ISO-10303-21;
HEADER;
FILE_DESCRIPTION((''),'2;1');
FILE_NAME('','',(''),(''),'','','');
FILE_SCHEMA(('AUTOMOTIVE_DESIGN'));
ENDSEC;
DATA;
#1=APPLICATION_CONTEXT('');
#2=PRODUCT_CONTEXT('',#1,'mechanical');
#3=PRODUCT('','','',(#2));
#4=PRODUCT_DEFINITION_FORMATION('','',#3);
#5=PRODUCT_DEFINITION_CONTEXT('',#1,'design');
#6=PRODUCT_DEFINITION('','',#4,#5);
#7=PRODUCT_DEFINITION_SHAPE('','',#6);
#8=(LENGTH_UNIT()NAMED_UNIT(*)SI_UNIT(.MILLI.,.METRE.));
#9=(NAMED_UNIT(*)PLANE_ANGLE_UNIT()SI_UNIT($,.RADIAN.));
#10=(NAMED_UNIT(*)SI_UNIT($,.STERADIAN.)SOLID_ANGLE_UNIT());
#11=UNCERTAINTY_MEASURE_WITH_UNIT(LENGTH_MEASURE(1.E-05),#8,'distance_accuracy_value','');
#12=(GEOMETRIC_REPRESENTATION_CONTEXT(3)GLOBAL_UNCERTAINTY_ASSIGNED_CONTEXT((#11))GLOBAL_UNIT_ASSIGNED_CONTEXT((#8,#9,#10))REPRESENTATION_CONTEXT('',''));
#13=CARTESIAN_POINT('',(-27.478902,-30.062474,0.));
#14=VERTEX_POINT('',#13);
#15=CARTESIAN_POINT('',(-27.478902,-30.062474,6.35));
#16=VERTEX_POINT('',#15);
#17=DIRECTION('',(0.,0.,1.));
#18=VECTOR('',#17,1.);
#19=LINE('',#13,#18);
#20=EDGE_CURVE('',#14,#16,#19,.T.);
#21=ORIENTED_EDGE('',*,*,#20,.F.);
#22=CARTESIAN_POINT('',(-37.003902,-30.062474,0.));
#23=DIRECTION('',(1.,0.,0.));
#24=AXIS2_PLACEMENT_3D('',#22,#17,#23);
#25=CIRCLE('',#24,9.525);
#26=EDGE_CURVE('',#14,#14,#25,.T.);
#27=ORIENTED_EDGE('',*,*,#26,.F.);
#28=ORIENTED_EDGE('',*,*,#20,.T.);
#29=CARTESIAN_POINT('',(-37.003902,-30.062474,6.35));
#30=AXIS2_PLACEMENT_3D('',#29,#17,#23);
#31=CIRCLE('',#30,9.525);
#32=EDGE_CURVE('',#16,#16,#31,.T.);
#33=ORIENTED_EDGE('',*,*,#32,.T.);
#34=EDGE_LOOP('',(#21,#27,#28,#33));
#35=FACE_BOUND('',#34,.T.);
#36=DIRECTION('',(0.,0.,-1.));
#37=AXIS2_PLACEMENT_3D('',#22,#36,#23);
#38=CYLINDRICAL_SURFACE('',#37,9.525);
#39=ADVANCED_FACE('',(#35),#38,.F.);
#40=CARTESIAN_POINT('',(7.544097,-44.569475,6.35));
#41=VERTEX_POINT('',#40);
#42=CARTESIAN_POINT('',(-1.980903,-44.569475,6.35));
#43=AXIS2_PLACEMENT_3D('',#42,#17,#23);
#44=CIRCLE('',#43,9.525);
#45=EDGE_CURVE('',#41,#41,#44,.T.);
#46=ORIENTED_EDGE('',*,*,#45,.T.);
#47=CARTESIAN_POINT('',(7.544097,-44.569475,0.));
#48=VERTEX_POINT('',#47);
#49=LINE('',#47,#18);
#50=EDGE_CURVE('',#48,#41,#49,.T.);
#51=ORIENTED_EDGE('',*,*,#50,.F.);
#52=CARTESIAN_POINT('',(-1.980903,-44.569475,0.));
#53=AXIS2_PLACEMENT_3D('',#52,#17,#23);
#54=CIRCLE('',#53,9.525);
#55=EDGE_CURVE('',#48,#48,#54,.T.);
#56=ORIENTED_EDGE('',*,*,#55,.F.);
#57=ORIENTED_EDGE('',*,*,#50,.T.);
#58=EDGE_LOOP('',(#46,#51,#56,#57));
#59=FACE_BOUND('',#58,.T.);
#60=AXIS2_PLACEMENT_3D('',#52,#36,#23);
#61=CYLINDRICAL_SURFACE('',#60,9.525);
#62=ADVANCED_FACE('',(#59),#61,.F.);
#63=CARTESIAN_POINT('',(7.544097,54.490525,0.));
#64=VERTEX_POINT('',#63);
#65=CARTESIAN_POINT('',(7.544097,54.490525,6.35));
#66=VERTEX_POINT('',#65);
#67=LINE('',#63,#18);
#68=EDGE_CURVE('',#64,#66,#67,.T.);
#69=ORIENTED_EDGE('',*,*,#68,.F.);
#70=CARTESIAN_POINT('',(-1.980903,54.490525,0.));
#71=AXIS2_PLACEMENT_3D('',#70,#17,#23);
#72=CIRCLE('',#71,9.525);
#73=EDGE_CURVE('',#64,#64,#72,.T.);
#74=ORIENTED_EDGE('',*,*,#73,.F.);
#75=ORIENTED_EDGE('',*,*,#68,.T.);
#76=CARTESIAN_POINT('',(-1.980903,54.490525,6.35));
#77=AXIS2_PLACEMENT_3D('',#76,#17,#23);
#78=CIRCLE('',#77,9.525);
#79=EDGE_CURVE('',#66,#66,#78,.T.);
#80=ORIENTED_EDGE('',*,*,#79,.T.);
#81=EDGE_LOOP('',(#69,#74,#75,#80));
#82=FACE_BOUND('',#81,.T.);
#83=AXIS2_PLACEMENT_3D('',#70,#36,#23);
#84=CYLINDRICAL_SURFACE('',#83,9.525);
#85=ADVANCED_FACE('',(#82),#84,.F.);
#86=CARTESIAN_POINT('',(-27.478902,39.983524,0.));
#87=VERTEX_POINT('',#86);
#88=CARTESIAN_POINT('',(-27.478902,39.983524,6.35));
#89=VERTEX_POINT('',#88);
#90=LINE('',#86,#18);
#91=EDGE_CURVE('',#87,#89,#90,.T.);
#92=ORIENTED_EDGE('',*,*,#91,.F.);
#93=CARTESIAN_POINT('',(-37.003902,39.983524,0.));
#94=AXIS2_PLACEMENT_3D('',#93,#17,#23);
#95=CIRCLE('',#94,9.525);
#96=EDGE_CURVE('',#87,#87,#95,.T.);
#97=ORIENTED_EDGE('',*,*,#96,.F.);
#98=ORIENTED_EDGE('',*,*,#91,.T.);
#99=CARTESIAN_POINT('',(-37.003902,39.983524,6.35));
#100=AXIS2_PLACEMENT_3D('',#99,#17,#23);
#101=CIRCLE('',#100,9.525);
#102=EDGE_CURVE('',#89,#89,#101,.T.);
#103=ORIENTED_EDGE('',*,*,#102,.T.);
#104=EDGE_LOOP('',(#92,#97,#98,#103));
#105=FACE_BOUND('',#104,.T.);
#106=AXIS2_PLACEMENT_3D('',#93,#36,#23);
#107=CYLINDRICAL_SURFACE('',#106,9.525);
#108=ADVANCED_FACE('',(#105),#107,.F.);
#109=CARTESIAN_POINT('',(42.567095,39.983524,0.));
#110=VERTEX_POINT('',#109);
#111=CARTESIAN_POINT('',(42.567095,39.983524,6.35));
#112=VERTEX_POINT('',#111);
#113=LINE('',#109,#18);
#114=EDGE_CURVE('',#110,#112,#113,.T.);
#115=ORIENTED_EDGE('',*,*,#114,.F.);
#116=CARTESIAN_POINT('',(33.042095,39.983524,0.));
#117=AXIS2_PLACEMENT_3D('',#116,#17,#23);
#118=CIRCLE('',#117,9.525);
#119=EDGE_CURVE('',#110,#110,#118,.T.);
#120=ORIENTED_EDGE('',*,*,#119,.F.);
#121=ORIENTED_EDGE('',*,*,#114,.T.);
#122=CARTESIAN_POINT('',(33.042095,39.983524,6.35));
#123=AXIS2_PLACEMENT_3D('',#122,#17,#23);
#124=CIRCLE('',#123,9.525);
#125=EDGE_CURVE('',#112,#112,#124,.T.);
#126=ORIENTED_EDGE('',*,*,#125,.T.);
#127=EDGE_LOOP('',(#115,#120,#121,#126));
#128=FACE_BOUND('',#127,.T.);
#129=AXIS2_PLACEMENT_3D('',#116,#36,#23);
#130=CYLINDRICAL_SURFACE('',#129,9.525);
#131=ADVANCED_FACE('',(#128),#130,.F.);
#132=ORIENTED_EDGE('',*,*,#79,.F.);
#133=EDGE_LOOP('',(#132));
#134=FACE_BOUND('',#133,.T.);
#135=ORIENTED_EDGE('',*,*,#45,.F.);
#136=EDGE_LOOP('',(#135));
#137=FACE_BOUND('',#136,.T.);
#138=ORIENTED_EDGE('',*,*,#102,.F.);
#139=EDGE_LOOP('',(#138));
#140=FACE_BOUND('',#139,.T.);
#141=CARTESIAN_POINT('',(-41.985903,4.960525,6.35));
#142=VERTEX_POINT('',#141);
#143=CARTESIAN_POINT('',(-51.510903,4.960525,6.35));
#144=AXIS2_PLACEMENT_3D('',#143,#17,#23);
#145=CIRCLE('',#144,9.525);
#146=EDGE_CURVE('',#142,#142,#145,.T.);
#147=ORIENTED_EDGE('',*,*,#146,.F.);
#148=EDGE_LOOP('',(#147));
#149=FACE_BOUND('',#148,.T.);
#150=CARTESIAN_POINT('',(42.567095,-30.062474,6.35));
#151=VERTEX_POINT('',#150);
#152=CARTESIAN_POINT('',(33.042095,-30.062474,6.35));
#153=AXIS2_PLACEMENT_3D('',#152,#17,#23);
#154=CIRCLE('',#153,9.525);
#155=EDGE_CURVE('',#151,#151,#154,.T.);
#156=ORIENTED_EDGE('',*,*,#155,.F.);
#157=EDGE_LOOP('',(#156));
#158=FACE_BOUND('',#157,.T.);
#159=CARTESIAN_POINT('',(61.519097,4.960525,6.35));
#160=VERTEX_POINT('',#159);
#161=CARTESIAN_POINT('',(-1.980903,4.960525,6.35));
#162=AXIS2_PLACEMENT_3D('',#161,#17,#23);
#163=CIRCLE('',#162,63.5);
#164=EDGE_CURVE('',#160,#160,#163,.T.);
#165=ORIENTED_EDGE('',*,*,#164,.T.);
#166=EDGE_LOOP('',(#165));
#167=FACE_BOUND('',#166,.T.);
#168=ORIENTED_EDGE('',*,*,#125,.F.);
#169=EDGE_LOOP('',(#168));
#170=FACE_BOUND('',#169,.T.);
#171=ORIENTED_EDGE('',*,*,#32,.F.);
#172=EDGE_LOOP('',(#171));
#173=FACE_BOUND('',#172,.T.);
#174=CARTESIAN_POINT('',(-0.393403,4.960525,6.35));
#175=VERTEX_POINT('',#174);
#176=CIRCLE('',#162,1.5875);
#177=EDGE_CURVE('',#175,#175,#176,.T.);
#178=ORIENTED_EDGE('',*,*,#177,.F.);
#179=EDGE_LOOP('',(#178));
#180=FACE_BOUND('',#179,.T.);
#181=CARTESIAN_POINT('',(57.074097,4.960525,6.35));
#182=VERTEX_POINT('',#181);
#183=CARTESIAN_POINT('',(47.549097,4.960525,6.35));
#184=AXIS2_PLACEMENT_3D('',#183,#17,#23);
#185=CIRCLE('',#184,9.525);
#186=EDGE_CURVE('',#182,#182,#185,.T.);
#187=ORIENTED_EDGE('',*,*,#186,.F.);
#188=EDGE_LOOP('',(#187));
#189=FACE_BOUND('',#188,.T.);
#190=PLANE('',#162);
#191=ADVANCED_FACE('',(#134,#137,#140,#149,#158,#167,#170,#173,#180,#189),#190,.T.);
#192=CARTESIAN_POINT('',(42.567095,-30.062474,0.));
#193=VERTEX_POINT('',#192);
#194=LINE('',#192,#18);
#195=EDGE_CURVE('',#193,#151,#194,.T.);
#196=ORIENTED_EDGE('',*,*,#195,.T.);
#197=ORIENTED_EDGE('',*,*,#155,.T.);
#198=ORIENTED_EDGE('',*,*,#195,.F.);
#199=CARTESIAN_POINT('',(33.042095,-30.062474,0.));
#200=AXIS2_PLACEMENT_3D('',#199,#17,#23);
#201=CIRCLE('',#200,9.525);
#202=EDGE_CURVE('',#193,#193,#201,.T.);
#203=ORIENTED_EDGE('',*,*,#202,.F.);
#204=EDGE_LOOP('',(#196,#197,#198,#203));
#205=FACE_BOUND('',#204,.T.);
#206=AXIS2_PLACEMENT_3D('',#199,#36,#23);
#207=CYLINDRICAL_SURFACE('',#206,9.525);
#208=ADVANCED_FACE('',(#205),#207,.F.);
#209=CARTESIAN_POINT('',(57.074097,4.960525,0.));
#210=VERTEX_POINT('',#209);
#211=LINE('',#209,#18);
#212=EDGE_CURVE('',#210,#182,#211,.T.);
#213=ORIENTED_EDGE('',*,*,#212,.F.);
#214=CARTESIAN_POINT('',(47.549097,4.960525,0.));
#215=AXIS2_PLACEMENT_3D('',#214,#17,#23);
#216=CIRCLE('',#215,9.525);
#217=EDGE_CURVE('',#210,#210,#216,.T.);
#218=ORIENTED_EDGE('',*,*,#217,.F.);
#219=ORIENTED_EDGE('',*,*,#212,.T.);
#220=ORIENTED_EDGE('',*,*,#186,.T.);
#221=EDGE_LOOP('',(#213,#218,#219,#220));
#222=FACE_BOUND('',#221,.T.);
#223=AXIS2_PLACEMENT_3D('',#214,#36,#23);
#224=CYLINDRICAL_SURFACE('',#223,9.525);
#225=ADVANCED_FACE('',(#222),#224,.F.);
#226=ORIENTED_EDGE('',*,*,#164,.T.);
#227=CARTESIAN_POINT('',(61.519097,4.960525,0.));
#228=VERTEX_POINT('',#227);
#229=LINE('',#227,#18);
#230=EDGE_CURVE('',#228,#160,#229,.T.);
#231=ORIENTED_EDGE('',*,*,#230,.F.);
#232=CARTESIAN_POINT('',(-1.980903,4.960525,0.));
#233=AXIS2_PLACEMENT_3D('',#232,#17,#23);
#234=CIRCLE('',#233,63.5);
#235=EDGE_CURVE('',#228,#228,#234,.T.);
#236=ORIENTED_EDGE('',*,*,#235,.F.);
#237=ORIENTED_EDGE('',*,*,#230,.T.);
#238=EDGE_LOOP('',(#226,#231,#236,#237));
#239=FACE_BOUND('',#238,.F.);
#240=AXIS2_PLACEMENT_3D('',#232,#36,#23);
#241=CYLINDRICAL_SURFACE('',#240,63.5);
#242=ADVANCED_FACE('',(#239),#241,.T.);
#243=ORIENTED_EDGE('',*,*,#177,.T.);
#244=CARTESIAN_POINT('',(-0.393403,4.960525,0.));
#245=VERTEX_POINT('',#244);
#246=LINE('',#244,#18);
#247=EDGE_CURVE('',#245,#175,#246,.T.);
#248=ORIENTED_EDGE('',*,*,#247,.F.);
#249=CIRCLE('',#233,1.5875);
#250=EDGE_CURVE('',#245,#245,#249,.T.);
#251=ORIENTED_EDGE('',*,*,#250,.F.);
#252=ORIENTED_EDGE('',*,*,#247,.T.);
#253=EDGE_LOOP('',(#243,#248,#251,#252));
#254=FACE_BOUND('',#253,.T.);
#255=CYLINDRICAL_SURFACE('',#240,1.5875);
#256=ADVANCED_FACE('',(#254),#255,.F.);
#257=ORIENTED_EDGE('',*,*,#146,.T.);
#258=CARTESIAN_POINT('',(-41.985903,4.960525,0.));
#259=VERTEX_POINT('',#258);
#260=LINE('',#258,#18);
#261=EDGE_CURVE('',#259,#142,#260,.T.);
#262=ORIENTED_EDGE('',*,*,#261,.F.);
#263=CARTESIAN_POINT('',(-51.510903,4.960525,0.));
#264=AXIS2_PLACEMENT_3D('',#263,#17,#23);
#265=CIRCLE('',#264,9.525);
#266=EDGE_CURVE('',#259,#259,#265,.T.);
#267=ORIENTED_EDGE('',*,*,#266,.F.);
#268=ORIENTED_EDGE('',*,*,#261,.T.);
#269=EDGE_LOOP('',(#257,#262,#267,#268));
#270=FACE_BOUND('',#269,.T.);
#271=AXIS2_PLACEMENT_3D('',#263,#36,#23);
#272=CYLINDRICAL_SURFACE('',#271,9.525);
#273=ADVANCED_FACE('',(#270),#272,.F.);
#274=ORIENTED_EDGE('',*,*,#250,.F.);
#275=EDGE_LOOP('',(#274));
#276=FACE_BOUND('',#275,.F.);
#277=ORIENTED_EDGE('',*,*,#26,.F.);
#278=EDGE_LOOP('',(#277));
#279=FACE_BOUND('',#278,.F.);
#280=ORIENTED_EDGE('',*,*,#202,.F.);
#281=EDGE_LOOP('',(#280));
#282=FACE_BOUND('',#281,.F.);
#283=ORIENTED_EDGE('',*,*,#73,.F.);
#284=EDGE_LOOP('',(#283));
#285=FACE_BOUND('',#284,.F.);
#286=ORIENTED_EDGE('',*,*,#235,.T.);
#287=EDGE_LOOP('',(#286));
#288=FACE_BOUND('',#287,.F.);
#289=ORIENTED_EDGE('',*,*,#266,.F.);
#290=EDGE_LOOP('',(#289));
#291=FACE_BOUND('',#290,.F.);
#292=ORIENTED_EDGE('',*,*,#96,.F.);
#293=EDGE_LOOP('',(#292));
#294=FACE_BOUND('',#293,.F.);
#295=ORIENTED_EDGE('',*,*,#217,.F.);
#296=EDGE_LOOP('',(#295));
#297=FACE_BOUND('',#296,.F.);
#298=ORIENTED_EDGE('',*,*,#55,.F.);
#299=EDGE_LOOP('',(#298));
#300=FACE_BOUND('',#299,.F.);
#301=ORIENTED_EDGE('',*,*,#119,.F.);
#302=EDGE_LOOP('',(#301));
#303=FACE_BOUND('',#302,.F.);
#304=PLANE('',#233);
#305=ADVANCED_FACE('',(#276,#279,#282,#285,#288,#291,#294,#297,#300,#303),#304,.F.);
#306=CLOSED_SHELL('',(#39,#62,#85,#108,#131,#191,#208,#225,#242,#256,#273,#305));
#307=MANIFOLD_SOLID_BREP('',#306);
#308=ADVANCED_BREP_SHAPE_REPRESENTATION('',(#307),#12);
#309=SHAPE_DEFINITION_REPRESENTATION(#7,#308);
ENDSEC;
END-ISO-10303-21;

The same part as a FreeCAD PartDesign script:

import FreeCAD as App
import Part
import Sketcher

V = App.Vector
Q = App.Units.Quantity

doc = App.newDocument("Part")
body = doc.addObject("PartDesign::Body", "Body")

# Sketch on XY plane
sketch1 = body.newObject("Sketcher::SketchObject", "Sketch")
sketch1.AttachmentSupport = (doc.getObject("XY_Plane"), [""])
sketch1.MapMode = "FlatFace"
sketch1.addGeometry(Part.Circle(V(-2, 5, 0), V(0, 0, 1), 63.5), False)
sketch1.addGeometry(Part.Circle(V(-37, -30.1, 0), V(0, 0, 1), 9.5), False)
sketch1.addGeometry(Part.Circle(V(-51.5, 5, 0), V(0, 0, 1), 9.5), False)
sketch1.addGeometry(Part.Circle(V(-2, -44.6, 0), V(0, 0, 1), 9.5), False)
sketch1.addGeometry(Part.Circle(V(33, -30.1, 0), V(0, 0, 1), 9.5), False)
sketch1.addGeometry(Part.Circle(V(47.5, 5, 0), V(0, 0, 1), 9.5), False)
sketch1.addGeometry(Part.Circle(V(-37, 40, 0), V(0, 0, 1), 9.5), False)
sketch1.addGeometry(Part.Circle(V(-2, 5, 0), V(0, 0, 1), 1.6), False)
sketch1.addGeometry(Part.Circle(V(-2, 54.5, 0), V(0, 0, 1), 9.5), False)
sketch1.addGeometry(Part.Circle(V(33, 40, 0), V(0, 0, 1), 9.5), False)
sketch1.addConstraint(Sketcher.Constraint("Coincident", 7, 3, 0, 3))
sketch1.addConstraint(Sketcher.Constraint("Equal", 1, 2))
sketch1.addConstraint(Sketcher.Constraint("Equal", 2, 3))
sketch1.addConstraint(Sketcher.Constraint("Equal", 3, 4))
sketch1.addConstraint(Sketcher.Constraint("Equal", 4, 5))
sketch1.addConstraint(Sketcher.Constraint("Equal", 5, 6))
sketch1.addConstraint(Sketcher.Constraint("Equal", 6, 8))
sketch1.addConstraint(Sketcher.Constraint("Equal", 8, 9))
sketch1.addConstraint(Sketcher.Constraint("Horizontal", 0, 3, 2, 3))
sketch1.addConstraint(Sketcher.Constraint("Horizontal", 1, 3, 4, 3))
sketch1.addConstraint(Sketcher.Constraint("Horizontal", 2, 3, 5, 3))
sketch1.addConstraint(Sketcher.Constraint("Horizontal", 6, 3, 9, 3))
sketch1.addConstraint(Sketcher.Constraint("Vertical", 0, 3, 3, 3))
sketch1.addConstraint(Sketcher.Constraint("Vertical", 1, 3, 6, 3))
sketch1.addConstraint(Sketcher.Constraint("Vertical", 7, 3, 8, 3))
sketch1.addConstraint(Sketcher.Constraint("Vertical", 4, 3, 9, 3))
sketch1.addConstraint(Sketcher.Constraint("Diameter", 0, Q("5 in")))
sketch1.addConstraint(Sketcher.Constraint("Diameter", 1, Q("0.75 in")))
sketch1.addConstraint(Sketcher.Constraint("Diameter", 7, Q("0.125 in")))
sketch1.addConstraint(Sketcher.Constraint("DistanceX", 2, 3, 5, 3, Q("3.9 in")))
sketch1.addConstraint(Sketcher.Constraint("DistanceX", 2, 3, 0, 3, Q("1.95 in")))
sketch1.addConstraint(Sketcher.Constraint("DistanceY", 3, 3, 0, 3, Q("1.95 in")))
sketch1.addConstraint(Sketcher.Constraint("DistanceY", 0, 3, 8, 3, Q("1.95 in")))
sketch1.addConstraint(Sketcher.Constraint("DistanceX", 1, 3, -1, 1, Q("37.003902 mm")))
sketch1.addConstraint(Sketcher.Constraint("DistanceX", 1, 3, 0, 3, Q("35.022999 mm")))
sketch1.addConstraint(Sketcher.Constraint("DistanceY", 1, 3, 0, 3, Q("35.022999 mm")))
sketch1.addConstraint(Sketcher.Constraint("DistanceX", 2, 3, 4, 3, Q("84.552998 mm")))
sketch1.addConstraint(Sketcher.Constraint("DistanceY", 2, 3, 6, 3, Q("35.022999 mm")))
sketch1.addConstraint(Sketcher.Constraint("DistanceY", -1, 1, 0, 3, Q("4.960525 mm")))
pad1 = body.newObject("PartDesign::Pad", "Pad")
pad1.Profile = sketch1
pad1.Length = Q("0.25 in")

doc.recompute()
